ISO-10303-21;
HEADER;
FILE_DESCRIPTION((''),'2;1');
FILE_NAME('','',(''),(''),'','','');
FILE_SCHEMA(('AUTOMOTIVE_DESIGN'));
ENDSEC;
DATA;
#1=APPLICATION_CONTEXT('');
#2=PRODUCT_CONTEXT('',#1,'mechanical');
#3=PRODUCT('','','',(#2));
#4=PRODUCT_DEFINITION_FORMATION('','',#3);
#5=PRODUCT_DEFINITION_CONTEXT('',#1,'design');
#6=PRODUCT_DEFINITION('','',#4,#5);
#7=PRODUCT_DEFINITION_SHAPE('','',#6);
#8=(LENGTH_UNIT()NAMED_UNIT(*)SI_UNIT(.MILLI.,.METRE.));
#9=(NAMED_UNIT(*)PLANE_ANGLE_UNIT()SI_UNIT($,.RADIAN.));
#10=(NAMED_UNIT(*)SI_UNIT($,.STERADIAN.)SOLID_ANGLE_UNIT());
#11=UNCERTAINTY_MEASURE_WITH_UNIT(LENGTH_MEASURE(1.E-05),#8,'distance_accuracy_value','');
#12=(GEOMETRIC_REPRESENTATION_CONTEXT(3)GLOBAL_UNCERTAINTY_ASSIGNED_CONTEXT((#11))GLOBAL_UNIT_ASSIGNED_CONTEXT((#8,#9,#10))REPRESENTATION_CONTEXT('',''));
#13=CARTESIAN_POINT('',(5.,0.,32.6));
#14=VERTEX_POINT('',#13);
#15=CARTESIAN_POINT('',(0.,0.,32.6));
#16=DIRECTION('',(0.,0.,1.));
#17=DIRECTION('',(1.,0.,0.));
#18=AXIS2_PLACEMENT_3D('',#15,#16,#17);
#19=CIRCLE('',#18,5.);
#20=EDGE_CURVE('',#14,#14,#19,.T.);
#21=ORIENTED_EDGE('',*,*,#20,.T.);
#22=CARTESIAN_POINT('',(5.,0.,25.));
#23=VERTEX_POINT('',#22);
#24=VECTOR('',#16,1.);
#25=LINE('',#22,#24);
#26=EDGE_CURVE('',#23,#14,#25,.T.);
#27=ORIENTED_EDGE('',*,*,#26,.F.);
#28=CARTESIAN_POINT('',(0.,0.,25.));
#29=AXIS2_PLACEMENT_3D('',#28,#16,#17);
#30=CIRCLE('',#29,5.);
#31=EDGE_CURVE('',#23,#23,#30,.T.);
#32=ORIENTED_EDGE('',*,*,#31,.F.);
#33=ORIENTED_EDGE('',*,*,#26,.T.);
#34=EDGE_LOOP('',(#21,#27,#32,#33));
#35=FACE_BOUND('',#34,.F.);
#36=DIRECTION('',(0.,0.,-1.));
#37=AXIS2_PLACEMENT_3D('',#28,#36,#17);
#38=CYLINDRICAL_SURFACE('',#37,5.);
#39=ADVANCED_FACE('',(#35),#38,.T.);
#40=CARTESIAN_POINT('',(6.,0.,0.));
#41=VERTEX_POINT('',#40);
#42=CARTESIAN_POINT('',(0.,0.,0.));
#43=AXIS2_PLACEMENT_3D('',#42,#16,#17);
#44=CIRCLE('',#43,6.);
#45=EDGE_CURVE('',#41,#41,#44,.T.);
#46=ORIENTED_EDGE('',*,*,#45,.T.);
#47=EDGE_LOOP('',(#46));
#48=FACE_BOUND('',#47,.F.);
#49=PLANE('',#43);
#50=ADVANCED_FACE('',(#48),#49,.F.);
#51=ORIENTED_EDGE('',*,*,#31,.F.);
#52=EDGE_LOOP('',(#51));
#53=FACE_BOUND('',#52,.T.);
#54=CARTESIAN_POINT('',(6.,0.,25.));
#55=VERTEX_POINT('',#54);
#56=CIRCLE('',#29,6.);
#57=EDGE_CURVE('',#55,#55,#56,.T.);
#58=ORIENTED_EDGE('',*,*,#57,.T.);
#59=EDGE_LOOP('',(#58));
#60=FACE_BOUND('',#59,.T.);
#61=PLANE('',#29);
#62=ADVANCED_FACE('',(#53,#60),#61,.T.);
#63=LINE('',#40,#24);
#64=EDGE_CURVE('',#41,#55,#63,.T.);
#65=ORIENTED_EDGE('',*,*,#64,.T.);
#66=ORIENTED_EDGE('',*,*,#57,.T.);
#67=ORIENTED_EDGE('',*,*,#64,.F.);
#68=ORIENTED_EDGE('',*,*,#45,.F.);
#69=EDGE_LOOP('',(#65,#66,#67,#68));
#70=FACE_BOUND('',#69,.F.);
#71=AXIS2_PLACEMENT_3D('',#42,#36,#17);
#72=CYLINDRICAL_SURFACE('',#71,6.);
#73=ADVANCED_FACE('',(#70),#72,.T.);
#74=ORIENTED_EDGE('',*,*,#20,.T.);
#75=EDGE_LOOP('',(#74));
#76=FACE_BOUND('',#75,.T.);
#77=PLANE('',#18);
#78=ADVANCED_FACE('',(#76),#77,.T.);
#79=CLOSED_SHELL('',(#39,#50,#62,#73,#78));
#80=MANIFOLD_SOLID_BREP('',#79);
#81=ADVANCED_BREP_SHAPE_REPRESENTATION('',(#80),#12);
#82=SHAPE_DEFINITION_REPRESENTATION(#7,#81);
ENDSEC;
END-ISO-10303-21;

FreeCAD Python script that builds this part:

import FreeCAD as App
import Part
import Sketcher
Q = App.Units.Quantity

doc = App.newDocument("Part")
params = doc.addObject("Spreadsheet::Sheet", "Params")
for row, (alias, value) in enumerate([
    ("sketch1_diameter", "12 mm"),
    ("pad1_length", "25 mm"),
    ("sketch2_diameter", "10 mm"),
    ("pad2_length", "7.6 mm"),
], start=1):
    params.set(f"A{row}", alias)
    params.set(f"B{row}", "=" + value)
    params.setAlias(f"B{row}", alias)

body = doc.addObject("PartDesign::Body", "Body")

sketch1 = body.newObject("Sketcher::SketchObject", "Sketch")
sketch1.AttachmentSupport = (doc.getObject("XY_Plane"), [""])
sketch1.MapMode = "FlatFace"
sketch1.addGeometry(Part.Circle(App.Vector(0, 0, 0), App.Vector(0, 0, 1), 6), False)
sketch1.addConstraint([
    Sketcher.Constraint("Coincident", 0, 3, -1, 1),
    Sketcher.Constraint("Diameter", 0, Q("12 mm")),
])
sketch1.setExpression("Constraints[1]", "Params.sketch1_diameter")
pad1 = body.newObject("PartDesign::Pad", "Pad")
pad1.Profile = sketch1
pad1.setExpression("Length", "Params.pad1_length")

sketch2 = body.newObject("Sketcher::SketchObject", "Sketch001")
sketch2.AttachmentSupport = (doc.getObject("XY_Plane"), [""])
sketch2.MapMode = "FlatFace"
sketch2.AttachmentOffset = App.Placement(App.Vector(0, 0, 25), App.Rotation())
sketch2.addGeometry(Part.Circle(App.Vector(0, 0, 0), App.Vector(0, 0, 1), 5), False)
sketch2.addConstraint([
    Sketcher.Constraint("Coincident", 0, 3, -1, 1),
    Sketcher.Constraint("Diameter", 0, Q("10 mm")),
])
sketch2.setExpression("Constraints[1]", "Params.sketch2_diameter")
pad2 = body.newObject("PartDesign::Pad", "Pad001")
pad2.Profile = sketch2
pad2.setExpression("Length", "Params.pad2_length")

doc.recompute()
